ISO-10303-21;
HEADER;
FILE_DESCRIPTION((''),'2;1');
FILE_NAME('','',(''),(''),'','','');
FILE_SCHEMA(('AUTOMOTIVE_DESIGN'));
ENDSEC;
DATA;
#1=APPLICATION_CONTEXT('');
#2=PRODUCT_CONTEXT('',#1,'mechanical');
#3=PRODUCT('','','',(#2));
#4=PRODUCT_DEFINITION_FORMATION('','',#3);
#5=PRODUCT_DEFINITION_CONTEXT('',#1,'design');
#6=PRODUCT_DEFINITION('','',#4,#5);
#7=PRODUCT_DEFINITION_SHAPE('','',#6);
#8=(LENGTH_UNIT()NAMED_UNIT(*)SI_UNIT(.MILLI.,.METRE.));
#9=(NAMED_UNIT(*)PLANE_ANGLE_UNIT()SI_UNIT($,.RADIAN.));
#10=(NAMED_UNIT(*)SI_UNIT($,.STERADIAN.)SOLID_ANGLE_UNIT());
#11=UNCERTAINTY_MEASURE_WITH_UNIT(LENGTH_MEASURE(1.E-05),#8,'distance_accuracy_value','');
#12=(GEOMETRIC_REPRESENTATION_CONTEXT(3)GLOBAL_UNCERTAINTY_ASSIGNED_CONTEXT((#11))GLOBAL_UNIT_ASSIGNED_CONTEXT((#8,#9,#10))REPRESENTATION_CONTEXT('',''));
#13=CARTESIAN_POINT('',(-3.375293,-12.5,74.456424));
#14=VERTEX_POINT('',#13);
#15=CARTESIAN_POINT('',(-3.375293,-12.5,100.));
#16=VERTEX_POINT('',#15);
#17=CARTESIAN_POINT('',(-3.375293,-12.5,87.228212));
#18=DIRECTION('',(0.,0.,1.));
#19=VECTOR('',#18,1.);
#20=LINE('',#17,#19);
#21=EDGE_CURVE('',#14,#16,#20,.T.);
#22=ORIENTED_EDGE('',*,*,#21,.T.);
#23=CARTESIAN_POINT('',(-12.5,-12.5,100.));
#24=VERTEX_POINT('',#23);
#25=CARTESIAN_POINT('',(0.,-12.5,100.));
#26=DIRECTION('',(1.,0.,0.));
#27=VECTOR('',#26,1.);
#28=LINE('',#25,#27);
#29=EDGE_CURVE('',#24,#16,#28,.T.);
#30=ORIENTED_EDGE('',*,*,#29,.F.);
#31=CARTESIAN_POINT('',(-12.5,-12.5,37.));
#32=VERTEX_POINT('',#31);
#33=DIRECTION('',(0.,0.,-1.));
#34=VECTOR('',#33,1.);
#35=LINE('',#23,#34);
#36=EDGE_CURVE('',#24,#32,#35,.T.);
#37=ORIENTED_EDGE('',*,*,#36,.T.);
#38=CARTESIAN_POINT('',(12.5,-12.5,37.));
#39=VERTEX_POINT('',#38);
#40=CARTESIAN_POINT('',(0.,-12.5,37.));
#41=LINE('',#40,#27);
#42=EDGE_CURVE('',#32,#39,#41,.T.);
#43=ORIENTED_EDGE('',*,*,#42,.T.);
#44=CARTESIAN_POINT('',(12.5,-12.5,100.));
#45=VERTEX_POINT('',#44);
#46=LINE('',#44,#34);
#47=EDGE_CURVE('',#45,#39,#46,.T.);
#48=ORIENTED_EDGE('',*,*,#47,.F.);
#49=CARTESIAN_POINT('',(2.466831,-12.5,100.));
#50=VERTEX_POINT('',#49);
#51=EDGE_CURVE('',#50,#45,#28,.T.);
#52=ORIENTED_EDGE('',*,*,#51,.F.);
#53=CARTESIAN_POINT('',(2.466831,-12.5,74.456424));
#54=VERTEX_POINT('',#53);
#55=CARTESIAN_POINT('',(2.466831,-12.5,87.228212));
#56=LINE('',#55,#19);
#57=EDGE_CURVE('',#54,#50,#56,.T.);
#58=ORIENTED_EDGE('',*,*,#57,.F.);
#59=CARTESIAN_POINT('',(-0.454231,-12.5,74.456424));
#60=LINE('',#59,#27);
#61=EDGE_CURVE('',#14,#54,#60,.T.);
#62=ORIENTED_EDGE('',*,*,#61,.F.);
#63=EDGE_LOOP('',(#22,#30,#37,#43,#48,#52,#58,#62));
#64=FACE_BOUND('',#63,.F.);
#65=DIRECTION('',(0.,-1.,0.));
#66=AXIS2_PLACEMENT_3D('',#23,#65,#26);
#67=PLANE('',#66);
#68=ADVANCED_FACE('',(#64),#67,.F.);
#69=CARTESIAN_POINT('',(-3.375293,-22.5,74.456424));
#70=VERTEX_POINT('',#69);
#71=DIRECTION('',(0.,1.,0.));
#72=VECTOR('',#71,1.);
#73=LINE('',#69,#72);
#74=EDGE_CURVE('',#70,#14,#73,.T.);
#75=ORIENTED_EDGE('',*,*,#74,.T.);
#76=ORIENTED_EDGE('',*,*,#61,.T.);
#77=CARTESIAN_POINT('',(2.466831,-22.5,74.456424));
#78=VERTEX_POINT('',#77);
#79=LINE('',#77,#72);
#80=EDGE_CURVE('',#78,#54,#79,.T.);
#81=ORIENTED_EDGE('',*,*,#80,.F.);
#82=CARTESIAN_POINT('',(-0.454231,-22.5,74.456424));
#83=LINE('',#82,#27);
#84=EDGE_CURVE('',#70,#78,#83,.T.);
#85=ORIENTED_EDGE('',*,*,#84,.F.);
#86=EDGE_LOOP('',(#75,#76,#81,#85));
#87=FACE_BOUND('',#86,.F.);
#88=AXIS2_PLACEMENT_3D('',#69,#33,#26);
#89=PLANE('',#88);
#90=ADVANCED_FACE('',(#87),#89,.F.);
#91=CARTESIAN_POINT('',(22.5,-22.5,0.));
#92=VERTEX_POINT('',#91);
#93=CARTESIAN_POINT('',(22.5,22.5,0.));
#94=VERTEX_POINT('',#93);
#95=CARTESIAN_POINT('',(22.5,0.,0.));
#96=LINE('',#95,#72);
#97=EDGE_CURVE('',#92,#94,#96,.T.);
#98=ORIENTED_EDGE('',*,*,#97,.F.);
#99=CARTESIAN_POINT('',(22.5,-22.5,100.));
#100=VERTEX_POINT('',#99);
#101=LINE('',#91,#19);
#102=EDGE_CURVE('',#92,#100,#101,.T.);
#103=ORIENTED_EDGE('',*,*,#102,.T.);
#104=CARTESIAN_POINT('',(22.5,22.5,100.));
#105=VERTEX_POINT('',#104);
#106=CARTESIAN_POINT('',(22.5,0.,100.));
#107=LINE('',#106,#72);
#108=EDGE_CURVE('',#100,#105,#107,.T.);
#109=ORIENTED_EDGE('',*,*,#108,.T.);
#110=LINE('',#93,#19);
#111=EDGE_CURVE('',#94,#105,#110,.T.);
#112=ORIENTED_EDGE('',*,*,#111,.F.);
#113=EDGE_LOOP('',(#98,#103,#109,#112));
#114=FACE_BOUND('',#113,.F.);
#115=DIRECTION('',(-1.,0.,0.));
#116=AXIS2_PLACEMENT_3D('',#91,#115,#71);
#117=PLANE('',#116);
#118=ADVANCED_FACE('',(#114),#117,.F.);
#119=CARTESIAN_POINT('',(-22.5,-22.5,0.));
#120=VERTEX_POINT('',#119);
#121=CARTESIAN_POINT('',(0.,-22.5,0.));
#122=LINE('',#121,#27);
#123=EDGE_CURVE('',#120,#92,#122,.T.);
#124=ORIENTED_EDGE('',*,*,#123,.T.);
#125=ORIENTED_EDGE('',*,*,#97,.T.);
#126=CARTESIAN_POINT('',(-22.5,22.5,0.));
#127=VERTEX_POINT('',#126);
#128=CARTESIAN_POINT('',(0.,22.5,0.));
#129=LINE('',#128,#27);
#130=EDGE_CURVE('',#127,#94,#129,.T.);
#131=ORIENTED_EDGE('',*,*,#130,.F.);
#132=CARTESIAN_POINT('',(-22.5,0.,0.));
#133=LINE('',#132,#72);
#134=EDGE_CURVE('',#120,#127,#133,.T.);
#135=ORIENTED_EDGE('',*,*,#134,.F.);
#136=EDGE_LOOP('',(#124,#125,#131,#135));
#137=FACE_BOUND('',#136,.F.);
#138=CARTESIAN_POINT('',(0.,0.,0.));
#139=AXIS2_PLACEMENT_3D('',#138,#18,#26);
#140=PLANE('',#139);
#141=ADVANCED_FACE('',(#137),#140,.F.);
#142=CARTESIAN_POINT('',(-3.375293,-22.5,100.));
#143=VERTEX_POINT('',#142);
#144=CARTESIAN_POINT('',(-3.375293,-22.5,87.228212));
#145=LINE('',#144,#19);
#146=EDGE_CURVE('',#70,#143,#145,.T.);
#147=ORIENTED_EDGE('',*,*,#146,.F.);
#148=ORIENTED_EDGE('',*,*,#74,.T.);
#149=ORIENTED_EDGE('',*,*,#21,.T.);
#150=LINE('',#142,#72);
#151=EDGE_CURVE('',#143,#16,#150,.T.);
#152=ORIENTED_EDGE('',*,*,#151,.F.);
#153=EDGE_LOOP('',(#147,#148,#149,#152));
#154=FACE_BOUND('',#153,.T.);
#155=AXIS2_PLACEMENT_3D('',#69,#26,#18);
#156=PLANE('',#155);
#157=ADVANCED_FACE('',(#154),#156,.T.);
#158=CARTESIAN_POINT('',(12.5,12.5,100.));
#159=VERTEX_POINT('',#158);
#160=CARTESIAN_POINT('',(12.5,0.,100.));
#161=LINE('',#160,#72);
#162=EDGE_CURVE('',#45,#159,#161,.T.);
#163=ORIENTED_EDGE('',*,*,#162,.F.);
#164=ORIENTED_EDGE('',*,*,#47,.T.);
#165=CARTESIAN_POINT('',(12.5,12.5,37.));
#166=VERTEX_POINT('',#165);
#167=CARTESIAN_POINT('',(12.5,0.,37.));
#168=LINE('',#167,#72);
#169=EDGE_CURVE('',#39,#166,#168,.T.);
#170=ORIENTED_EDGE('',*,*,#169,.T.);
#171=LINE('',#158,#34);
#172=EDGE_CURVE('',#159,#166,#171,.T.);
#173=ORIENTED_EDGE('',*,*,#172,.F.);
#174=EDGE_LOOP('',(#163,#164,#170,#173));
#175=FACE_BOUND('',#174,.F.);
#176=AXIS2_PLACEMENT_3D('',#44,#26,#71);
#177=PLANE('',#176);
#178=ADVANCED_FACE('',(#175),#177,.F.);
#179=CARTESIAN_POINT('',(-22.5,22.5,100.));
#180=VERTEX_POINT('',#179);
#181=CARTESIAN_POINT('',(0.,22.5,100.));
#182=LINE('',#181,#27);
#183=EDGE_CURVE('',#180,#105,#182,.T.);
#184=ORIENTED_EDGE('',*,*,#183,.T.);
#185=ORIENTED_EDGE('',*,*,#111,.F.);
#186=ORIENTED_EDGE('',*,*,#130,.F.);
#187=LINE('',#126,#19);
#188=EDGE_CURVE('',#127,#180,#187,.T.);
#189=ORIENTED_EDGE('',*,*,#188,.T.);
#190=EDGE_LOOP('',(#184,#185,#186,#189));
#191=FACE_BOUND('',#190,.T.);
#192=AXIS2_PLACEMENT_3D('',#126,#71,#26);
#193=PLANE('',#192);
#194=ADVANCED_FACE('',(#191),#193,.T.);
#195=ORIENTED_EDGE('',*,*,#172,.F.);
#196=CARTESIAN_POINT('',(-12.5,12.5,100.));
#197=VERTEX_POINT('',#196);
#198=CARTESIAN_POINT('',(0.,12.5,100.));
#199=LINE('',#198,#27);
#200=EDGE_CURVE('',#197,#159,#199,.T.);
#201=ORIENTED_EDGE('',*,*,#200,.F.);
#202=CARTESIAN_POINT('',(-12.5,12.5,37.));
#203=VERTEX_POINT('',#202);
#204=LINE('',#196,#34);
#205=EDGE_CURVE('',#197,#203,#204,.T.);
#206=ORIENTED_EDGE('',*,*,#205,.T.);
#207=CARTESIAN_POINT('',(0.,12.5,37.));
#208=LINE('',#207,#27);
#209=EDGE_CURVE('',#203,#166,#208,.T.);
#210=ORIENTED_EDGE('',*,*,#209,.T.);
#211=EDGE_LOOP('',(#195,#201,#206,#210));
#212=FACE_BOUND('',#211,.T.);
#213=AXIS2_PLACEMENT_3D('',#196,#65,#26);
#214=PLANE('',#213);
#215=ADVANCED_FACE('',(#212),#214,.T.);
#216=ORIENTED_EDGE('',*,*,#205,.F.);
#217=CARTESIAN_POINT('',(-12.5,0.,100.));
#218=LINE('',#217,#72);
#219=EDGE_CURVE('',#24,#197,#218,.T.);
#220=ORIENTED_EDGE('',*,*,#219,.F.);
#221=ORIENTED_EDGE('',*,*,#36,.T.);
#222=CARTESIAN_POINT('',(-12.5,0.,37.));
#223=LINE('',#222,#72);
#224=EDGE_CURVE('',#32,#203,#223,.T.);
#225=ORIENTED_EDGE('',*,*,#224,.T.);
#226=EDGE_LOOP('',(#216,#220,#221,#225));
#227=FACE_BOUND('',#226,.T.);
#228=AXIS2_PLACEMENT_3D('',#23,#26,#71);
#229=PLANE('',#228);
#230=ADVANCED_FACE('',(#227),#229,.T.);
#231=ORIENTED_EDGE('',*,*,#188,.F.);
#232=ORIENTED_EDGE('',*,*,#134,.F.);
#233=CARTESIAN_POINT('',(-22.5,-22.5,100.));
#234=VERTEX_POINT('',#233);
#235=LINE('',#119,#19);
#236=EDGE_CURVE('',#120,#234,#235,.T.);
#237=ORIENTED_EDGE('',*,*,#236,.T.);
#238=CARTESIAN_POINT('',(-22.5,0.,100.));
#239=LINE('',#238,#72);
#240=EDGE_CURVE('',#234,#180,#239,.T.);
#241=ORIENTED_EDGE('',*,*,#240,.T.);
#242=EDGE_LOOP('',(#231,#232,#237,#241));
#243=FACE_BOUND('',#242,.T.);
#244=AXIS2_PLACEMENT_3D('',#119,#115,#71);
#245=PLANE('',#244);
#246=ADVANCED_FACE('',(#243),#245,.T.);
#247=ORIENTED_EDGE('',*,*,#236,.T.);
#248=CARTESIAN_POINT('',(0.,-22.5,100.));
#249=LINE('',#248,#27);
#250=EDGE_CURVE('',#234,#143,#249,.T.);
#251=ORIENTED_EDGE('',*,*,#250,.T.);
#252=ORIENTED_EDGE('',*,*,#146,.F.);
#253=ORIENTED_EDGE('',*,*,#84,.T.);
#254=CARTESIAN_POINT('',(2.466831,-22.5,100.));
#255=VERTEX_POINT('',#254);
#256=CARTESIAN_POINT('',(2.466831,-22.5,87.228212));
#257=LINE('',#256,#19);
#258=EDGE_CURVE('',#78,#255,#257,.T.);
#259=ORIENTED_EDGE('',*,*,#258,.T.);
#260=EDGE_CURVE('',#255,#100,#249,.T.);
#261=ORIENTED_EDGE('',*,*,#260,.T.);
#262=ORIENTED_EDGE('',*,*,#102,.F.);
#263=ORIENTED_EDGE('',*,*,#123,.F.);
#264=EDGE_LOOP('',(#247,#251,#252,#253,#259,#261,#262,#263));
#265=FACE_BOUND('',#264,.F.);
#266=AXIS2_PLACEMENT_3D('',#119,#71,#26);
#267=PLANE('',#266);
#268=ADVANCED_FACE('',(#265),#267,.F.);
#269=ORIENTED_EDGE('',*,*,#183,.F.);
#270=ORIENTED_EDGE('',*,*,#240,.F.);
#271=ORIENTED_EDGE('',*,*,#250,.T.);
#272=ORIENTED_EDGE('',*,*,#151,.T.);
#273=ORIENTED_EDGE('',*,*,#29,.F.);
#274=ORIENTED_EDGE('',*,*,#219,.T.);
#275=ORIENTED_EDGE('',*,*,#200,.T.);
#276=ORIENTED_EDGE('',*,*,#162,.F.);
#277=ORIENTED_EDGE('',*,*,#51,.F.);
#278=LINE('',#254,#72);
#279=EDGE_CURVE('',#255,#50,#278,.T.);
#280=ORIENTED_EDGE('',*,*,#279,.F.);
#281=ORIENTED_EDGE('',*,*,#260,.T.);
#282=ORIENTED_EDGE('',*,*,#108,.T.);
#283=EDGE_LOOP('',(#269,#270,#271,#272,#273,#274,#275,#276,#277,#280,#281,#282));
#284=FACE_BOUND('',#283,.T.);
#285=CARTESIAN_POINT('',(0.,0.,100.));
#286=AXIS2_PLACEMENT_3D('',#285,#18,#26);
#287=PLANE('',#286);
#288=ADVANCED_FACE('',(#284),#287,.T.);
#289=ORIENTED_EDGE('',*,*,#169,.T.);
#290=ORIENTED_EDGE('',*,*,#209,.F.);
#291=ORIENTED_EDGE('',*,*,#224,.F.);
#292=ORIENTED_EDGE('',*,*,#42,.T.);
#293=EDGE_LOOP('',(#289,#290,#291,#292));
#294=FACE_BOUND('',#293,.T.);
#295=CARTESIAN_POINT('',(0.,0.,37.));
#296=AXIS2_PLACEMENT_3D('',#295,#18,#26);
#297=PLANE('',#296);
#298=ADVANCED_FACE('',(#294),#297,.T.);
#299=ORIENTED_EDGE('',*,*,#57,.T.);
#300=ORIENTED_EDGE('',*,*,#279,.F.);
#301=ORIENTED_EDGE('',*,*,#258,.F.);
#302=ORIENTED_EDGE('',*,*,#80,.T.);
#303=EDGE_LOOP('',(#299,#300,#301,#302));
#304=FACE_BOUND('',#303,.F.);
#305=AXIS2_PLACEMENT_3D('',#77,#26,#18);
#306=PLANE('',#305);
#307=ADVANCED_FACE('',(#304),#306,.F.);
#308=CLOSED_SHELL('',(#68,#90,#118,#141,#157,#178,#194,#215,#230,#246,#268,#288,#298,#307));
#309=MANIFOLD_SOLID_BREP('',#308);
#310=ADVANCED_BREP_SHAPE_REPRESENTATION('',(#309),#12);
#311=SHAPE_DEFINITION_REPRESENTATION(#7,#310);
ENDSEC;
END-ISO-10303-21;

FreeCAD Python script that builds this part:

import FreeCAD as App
import Part
import Sketcher

V = App.Vector
Q = App.Units.Quantity

doc = App.newDocument("Part")
params = doc.addObject("Spreadsheet::Sheet", "Params")
for row, (alias, value) in enumerate([
    ("sketch1_width", "45 mm"),
    ("pad1_length", "100 mm"),
    ("sketch2_width", "25 mm"),
    ("pocket1_length", "63 mm"),
    ("pocket2_length", "10 mm"),
], start=1):
    params.set(f"A{row}", alias)
    params.set(f"B{row}", "=" + value)
    params.setAlias(f"B{row}", alias)

body = doc.addObject("PartDesign::Body", "Body")

sketch1 = doc.addObject("Sketcher::SketchObject", "Sketch")
body.addObject(sketch1)
sketch1.AttachmentSupport = (doc.XY_Plane, [""])
sketch1.MapMode = "FlatFace"
sketch1.addGeometry(Part.LineSegment(V(-22, 22, 0), V(-22, -22, 0)), False)
sketch1.addGeometry(Part.LineSegment(V(-22, -22, 0), V(22, -22, 0)), False)
sketch1.addGeometry(Part.LineSegment(V(22, -22, 0), V(22, 22, 0)), False)
sketch1.addGeometry(Part.LineSegment(V(22, 22, 0), V(-22, 22, 0)), False)
sketch1.addConstraint(Sketcher.Constraint("Coincident", 0, 2, 1, 1))
sketch1.addConstraint(Sketcher.Constraint("Coincident", 1, 2, 2, 1))
sketch1.addConstraint(Sketcher.Constraint("Coincident", 2, 2, 3, 1))
sketch1.addConstraint(Sketcher.Constraint("Coincident", 3, 2, 0, 1))
sketch1.addConstraint(Sketcher.Constraint("Vertical", 0))
sketch1.addConstraint(Sketcher.Constraint("Horizontal", 1))
sketch1.addConstraint(Sketcher.Constraint("Vertical", 2))
sketch1.addConstraint(Sketcher.Constraint("Horizontal", 3))
sketch1.addConstraint(Sketcher.Constraint("Symmetric", 0, 2, 2, 2, -1, 1))
sketch1.addConstraint(Sketcher.Constraint("Equal", 3, 0))
sketch1.addConstraint(Sketcher.Constraint("DistanceX", 1, 1, 1, 2, Q("45 mm")))
sketch1.setExpression("Constraints[10]", "Params.sketch1_width")
pad1 = doc.addObject("PartDesign::Pad", "Pad")
body.addObject(pad1)
pad1.Profile = sketch1
pad1.setExpression("Length", "Params.pad1_length")

sketch2 = doc.addObject("Sketcher::SketchObject", "Sketch001")
body.addObject(sketch2)
sketch2.AttachmentSupport = (doc.XY_Plane, [""])
sketch2.MapMode = "FlatFace"
sketch2.AttachmentOffset = App.Placement(V(0, 0, 100), App.Rotation())
sketch2.addGeometry(Part.LineSegment(V(-12, 12, 0), V(-12, -12, 0)), False)
sketch2.addGeometry(Part.LineSegment(V(-12, -12, 0), V(12, -12, 0)), False)
sketch2.addGeometry(Part.LineSegment(V(12, -12, 0), V(12, 12, 0)), False)
sketch2.addGeometry(Part.LineSegment(V(12, 12, 0), V(-12, 12, 0)), False)
sketch2.addConstraint(Sketcher.Constraint("Coincident", 0, 2, 1, 1))
sketch2.addConstraint(Sketcher.Constraint("Coincident", 1, 2, 2, 1))
sketch2.addConstraint(Sketcher.Constraint("Coincident", 2, 2, 3, 1))
sketch2.addConstraint(Sketcher.Constraint("Coincident", 3, 2, 0, 1))
sketch2.addConstraint(Sketcher.Constraint("Vertical", 0))
sketch2.addConstraint(Sketcher.Constraint("Horizontal", 1))
sketch2.addConstraint(Sketcher.Constraint("Vertical", 2))
sketch2.addConstraint(Sketcher.Constraint("Horizontal", 3))
sketch2.addConstraint(Sketcher.Constraint("Symmetric", 0, 2, 2, 2, -1, 1))
sketch2.addConstraint(Sketcher.Constraint("Equal", 3, 0))
sketch2.addConstraint(Sketcher.Constraint("DistanceX", 1, 1, 1, 2, Q("25 mm")))
sketch2.setExpression("Constraints[10]", "Params.sketch2_width")
pocket1 = doc.addObject("PartDesign::Pocket", "Pocket")
body.addObject(pocket1)
pocket1.Profile = sketch2
pocket1.setExpression("Length", "Params.pocket1_length")

sketch3 = doc.addObject("Sketcher::SketchObject", "Sketch002")
body.addObject(sketch3)
sketch3.AttachmentSupport = (doc.XZ_Plane, [""])
sketch3.MapMode = "FlatFace"
sketch3.AttachmentOffset = App.Placement(V(0, 0, 22.5), App.Rotation())
sketch3.addGeometry(Part.LineSegment(V(-3, 100, 0), V(-3, 74, 0)), False)
sketch3.addGeometry(Part.LineSegment(V(-3, 74, 0), V(2, 74, 0)), False)
sketch3.addGeometry(Part.LineSegment(V(2, 74, 0), V(2, 100, 0)), False)
sketch3.addGeometry(Part.LineSegment(V(2, 100, 0), V(-3, 100, 0)), False)
sketch3.addConstraint(Sketcher.Constraint("Coincident", 0, 2, 1, 1))
sketch3.addConstraint(Sketcher.Constraint("Coincident", 1, 2, 2, 1))
sketch3.addConstraint(Sketcher.Constraint("Coincident", 2, 2, 3, 1))
sketch3.addConstraint(Sketcher.Constraint("Coincident", 3, 2, 0, 1))
sketch3.addConstraint(Sketcher.Constraint("Vertical", 0))
sketch3.addConstraint(Sketcher.Constraint("Horizontal", 1))
sketch3.addConstraint(Sketcher.Constraint("Vertical", 2))
sketch3.addConstraint(Sketcher.Constraint("Horizontal", 3))
sketch3.addConstraint(Sketcher.Constraint("DistanceY", -1, 1, 2, 2, Q("100 mm")))
sketch3.addConstraint(Sketcher.Constraint("DistanceX", 1, 1, 1, 2, Q("5.842124 mm")))
sketch3.addConstraint(Sketcher.Constraint("DistanceY", 0, 2, 0, 1, Q("25.543576 mm")))
sketch3.addConstraint(Sketcher.Constraint("DistanceX", -1, 1, 1, 2, Q("2.466831 mm")))
pocket2 = doc.addObject("PartDesign::Pocket", "Pocket001")
body.addObject(pocket2)
pocket2.Profile = sketch3
pocket2.setExpression("Length", "Params.pocket2_length")

doc.recompute()
